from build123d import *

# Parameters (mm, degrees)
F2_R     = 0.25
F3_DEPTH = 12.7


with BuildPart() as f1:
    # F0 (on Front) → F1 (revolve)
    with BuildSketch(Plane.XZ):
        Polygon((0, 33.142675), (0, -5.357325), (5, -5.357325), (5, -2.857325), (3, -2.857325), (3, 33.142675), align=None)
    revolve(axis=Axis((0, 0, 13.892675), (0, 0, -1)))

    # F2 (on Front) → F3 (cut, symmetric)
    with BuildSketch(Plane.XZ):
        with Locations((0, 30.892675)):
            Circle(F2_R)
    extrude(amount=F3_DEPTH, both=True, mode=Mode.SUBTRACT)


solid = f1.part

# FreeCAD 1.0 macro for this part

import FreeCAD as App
import Part
import Sketcher
Q = App.Units.Quantity

doc = App.newDocument("Part")
body = doc.addObject("PartDesign::Body", "Body")

sketch1 = body.newObject("Sketcher::SketchObject", "Sketch")
sketch1.AttachmentSupport = (doc.getObject("XZ_Plane"), [""])
sketch1.MapMode = "FlatFace"
sketch1.addGeometry([
    Part.LineSegment(App.Vector(0, 33.142675, 0), App.Vector(0, -5.357325, 0)),
    Part.LineSegment(App.Vector(0, -5.357325, 0), App.Vector(5, -5.357325, 0)),
    Part.LineSegment(App.Vector(5, -5.357325, 0), App.Vector(5, -2.857325, 0)),
    Part.LineSegment(App.Vector(5, -2.857325, 0), App.Vector(3, -2.857325, 0)),
    Part.LineSegment(App.Vector(3, -2.857325, 0), App.Vector(3, 33.142675, 0)),
    Part.LineSegment(App.Vector(3, 33.142675, 0), App.Vector(0, 33.142675, 0)),
], False)
sketch1.addConstraint([
    Sketcher.Constraint("Coincident", 0, 2, 1, 1),
    Sketcher.Constraint("Coincident", 1, 2, 2, 1),
    Sketcher.Constraint("Coincident", 2, 2, 3, 1),
    Sketcher.Constraint("Coincident", 3, 2, 4, 1),
    Sketcher.Constraint("Coincident", 4, 2, 5, 1),
    Sketcher.Constraint("Coincident", 5, 2, 0, 1),
    Sketcher.Constraint("Vertical", 0),
    Sketcher.Constraint("Horizontal", 1),
    Sketcher.Constraint("Vertical", 2),
    Sketcher.Constraint("Horizontal", 3),
    Sketcher.Constraint("Vertical", 4),
    Sketcher.Constraint("Horizontal", 5),
    Sketcher.Constraint("PointOnObject", 0, 2, -2),
    Sketcher.Constraint("DistanceX", 1, 1, 1, 2, Q("5 mm")),
    Sketcher.Constraint("DistanceX", 3, 2, 3, 1, Q("2 mm")),
    Sketcher.Constraint("DistanceY", 4, 1, 4, 2, Q("36 mm")),
    Sketcher.Constraint("DistanceY", 0, 2, 0, 1, Q("38.5 mm")),
    Sketcher.Constraint("DistanceY", 0, 2, -1, 1, Q("5.357325 mm")),
])
revolution = body.newObject("PartDesign::Revolution", "Revolution")
revolution.Profile = sketch1
revolution.ReferenceAxis = (sketch1, ["V_Axis"])
revolution.Angle = 360

sketch2 = body.newObject("Sketcher::SketchObject", "Sketch001")
sketch2.AttachmentSupport = (doc.getObject("XZ_Plane"), [""])
sketch2.MapMode = "FlatFace"
sketch2.addGeometry(Part.Circle(App.Vector(0, 30.892675, 0), App.Vector(0, 0, 1), 0.25), False)
sketch2.addConstraint([
    Sketcher.Constraint("PointOnObject", 0, 3, -2),
    Sketcher.Constraint("Diameter", 0, Q("0.5 mm")),
    Sketcher.Constraint("DistanceY", -1, 1, 0, 3, Q("30.892675 mm")),
])
pocket1 = body.newObject("PartDesign::Pocket", "Pocket")
pocket1.Profile = sketch2
pocket1.Length = 25.4
pocket1.Midplane = True

doc.recompute()
